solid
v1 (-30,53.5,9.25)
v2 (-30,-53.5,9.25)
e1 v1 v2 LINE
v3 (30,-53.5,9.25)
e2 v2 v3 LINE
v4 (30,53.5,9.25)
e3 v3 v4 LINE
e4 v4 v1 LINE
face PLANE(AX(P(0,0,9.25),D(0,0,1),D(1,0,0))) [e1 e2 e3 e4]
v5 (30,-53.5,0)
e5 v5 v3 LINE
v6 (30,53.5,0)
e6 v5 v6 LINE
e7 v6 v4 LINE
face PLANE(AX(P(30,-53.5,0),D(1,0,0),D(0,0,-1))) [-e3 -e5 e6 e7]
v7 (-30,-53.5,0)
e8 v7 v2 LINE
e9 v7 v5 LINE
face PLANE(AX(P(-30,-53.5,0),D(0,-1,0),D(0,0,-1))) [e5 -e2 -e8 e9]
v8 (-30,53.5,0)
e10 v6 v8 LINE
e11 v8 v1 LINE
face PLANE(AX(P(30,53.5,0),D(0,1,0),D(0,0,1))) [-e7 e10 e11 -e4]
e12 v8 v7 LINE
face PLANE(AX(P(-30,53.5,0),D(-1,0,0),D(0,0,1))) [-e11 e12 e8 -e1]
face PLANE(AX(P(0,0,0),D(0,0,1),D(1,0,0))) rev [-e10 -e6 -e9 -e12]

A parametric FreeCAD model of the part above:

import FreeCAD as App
import Part
import Sketcher
from FreeCAD import Vector
Q = App.Units.Quantity


def add_polygon(sketch, points):
    """Adds a closed chain of lines whose ends are joined by coincident constraints."""
    first, n = sketch.GeometryCount, len(points)
    for a, b in zip(points, points[1:] + points[:1]):
        sketch.addGeometry(Part.LineSegment(App.Vector(*a, 0), App.Vector(*b, 0)), False)
    for i in range(n):
        sketch.addConstraint(Sketcher.Constraint("Coincident", first + i, 2, first + (i + 1) % n, 1))

doc = App.newDocument("Part")
body = doc.addObject("PartDesign::Body", "Body")

# Sketch on XY plane
sketch1 = doc.addObject("Sketcher::SketchObject", "Sketch")
body.addObject(sketch1)
sketch1.AttachmentSupport = (doc.XY_Plane, [""])
sketch1.MapMode = "FlatFace"
sketch1.AttachmentOffset = App.Placement(Vector(0, 0, 9.25), App.Rotation())
add_polygon(sketch1, [(-30, 54), (-30, -54), (30, -54), (30, 54)])  # lines 0-3
sketch1.addConstraint([
    Sketcher.Constraint("Vertical", 0),
    Sketcher.Constraint("Horizontal", 1),
    Sketcher.Constraint("Vertical", 2),
    Sketcher.Constraint("Horizontal", 3),
    Sketcher.Constraint("Symmetric", 0, 2, 2, 2, -1, 1),
    Sketcher.Constraint("DistanceX", 1, 1, 1, 2, Q("60 mm")),
    Sketcher.Constraint("DistanceY", 0, 2, 0, 1, Q("107 mm")),
])
pad1 = doc.addObject("PartDesign::Pad", "Pad")
body.addObject(pad1)
pad1.Profile = sketch1
pad1.Length = 9.25
pad1.Reversed = True

doc.recompute()
